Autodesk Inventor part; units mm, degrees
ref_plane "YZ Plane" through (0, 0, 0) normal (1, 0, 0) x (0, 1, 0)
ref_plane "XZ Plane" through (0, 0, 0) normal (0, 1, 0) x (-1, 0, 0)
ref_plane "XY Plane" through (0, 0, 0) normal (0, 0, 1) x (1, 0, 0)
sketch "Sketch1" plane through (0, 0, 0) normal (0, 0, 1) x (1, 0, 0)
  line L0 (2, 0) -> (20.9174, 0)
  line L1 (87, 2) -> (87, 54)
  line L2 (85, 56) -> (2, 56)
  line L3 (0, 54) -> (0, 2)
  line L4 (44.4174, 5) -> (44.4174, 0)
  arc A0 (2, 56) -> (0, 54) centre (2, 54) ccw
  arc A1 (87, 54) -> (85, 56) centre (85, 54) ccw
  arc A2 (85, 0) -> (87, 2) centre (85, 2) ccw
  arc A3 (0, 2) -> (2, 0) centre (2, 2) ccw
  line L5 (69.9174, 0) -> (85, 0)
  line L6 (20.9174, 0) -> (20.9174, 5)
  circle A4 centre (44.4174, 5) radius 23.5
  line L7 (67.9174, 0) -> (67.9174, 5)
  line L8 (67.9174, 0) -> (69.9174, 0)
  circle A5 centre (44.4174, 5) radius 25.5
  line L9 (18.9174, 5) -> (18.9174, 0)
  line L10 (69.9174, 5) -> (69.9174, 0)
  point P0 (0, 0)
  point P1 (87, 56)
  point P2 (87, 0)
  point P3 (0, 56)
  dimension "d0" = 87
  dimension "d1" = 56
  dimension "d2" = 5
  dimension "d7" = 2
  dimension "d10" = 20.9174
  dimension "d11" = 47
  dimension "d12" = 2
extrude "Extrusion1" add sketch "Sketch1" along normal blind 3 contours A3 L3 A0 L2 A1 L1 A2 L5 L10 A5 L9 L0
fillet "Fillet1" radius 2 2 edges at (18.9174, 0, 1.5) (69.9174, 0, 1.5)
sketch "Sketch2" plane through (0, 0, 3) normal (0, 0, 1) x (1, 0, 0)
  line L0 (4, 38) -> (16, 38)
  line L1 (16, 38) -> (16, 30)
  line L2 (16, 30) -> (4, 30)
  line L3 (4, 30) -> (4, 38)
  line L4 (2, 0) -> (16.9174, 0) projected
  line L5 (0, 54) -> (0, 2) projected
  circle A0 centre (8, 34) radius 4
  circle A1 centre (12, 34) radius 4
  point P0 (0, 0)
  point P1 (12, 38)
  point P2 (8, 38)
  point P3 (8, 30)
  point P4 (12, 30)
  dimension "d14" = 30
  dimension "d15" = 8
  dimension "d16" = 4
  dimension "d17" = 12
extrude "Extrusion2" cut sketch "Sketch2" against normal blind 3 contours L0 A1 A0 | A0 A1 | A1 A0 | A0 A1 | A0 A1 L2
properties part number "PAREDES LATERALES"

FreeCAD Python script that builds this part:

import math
import FreeCAD as App
import Part
import Sketcher
Q = App.Units.Quantity


def edges_at(feature, points):
    """Names of the edges that pass closest to the given points."""
    edges = feature.Shape.Edges
    near = lambda p: min(range(len(edges)), key=lambda i: edges[i].distToShape(Part.Vertex(*p))[0])
    return sorted({f"Edge{near(p) + 1}" for p in points})

doc = App.newDocument("Part")
body = doc.addObject("PartDesign::Body", "Body")

# Sketch on XY plane
sketch1 = body.newObject("Sketcher::SketchObject", "Sketch")
sketch1.AttachmentSupport = (doc.getObject("XY_Plane"), [""])
sketch1.MapMode = "FlatFace"
sketch1.addGeometry([
    Part.ArcOfCircle(Part.Circle(App.Vector(2, 2, 0), App.Vector(0, 0, 1), 2), math.radians(180), math.radians(270)),  # 0
    Part.LineSegment(App.Vector(2, 0, 0), App.Vector(18.9, 0, 0)),  # 1
    Part.LineSegment(App.Vector(18.9, 0, 0), App.Vector(18.9, 5, 0)),  # 2
    Part.ArcOfCircle(Part.Circle(App.Vector(44.4, 5, 0), App.Vector(0, 0, 1), 25.5), math.radians(0), math.radians(180)),  # 3
    Part.LineSegment(App.Vector(69.9, 5, 0), App.Vector(69.9, 0, 0)),  # 4
    Part.LineSegment(App.Vector(69.9, 0, 0), App.Vector(85, 0, 0)),  # 5
    Part.ArcOfCircle(Part.Circle(App.Vector(85, 2, 0), App.Vector(0, 0, 1), 2), math.radians(-90), math.radians(0)),  # 6
    Part.LineSegment(App.Vector(87, 2, 0), App.Vector(87, 54, 0)),  # 7
    Part.ArcOfCircle(Part.Circle(App.Vector(85, 54, 0), App.Vector(0, 0, 1), 2), math.radians(0), math.radians(90)),  # 8
    Part.LineSegment(App.Vector(85, 56, 0), App.Vector(2, 56, 0)),  # 9
    Part.ArcOfCircle(Part.Circle(App.Vector(2, 54, 0), App.Vector(0, 0, 1), 2), math.radians(90), math.radians(180)),  # 10
    Part.LineSegment(App.Vector(0, 54, 0), App.Vector(0, 2, 0)),  # 11
], False)
sketch1.addConstraint([
    Sketcher.Constraint("Tangent", 0, 2, 1, 1),
    Sketcher.Constraint("Coincident", 1, 2, 2, 1),
    Sketcher.Constraint("Tangent", 2, 2, 3, 2),
    Sketcher.Constraint("Tangent", 3, 1, 4, 1),
    Sketcher.Constraint("Coincident", 4, 2, 5, 1),
    Sketcher.Constraint("Tangent", 5, 2, 6, 1),
    Sketcher.Constraint("Tangent", 6, 2, 7, 1),
    Sketcher.Constraint("Tangent", 7, 2, 8, 1),
    Sketcher.Constraint("Tangent", 8, 2, 9, 1),
    Sketcher.Constraint("Tangent", 9, 2, 10, 1),
    Sketcher.Constraint("Tangent", 10, 2, 11, 1),
    Sketcher.Constraint("Tangent", 11, 2, 0, 1),
    Sketcher.Constraint("Horizontal", 1),
    Sketcher.Constraint("Vertical", 2),
    Sketcher.Constraint("Vertical", 4),
    Sketcher.Constraint("Horizontal", 5),
    Sketcher.Constraint("Vertical", 7),
    Sketcher.Constraint("Horizontal", 9),
    Sketcher.Constraint("Vertical", 11),
    Sketcher.Constraint("Equal", 0, 6),
    Sketcher.Constraint("Equal", 6, 8),
    Sketcher.Constraint("Equal", 8, 10),
    Sketcher.Constraint("PointOnObject", 0, 2, -1),
    Sketcher.Constraint("PointOnObject", 4, 2, -1),
    Sketcher.Constraint("PointOnObject", 10, 2, -2),
    Sketcher.Constraint("Radius", 0, Q("2 mm")),
    Sketcher.Constraint("DistanceY", 2, 1, 2, 2, Q("5 mm")),
    Sketcher.Constraint("DistanceX", -1, 1, 6, 2, Q("87 mm")),
    Sketcher.Constraint("DistanceY", -1, 1, 8, 2, Q("56 mm")),
    Sketcher.Constraint("Radius", 3, Q("25.5 mm")),
    Sketcher.Constraint("DistanceX", 1, 1, 1, 2, Q("16.9174 mm")),
])
pad1 = body.newObject("PartDesign::Pad", "Pad")
pad1.Profile = sketch1
pad1.Length = 3
doc.recompute()

fillet = body.newObject("PartDesign::Fillet", "Fillet")
fillet.Base = (pad1, edges_at(pad1, [(18.917, 0, 1.5), (69.917, 0, 1.5)]))
fillet.Radius = 2

# Sketch on XY plane
sketch2 = body.newObject("Sketcher::SketchObject", "Sketch001")
sketch2.AttachmentSupport = (doc.getObject("XY_Plane"), [""])
sketch2.MapMode = "FlatFace"
sketch2.AttachmentOffset = App.Placement(App.Vector(0, 0, 3), App.Rotation())
sketch2.addGeometry([
    Part.LineSegment(App.Vector(12, 38, 0), App.Vector(8, 38, 0)),
    Part.ArcOfCircle(Part.Circle(App.Vector(8, 34, 0), App.Vector(0, 0, 1), 4), math.radians(90), math.radians(270)),
    Part.LineSegment(App.Vector(8, 30, 0), App.Vector(12, 30, 0)),
    Part.ArcOfCircle(Part.Circle(App.Vector(12, 34, 0), App.Vector(0, 0, 1), 4), math.radians(-90), math.radians(90)),
], False)
sketch2.addConstraint([
    Sketcher.Constraint("Tangent", 0, 2, 1, 1),
    Sketcher.Constraint("Tangent", 1, 2, 2, 1),
    Sketcher.Constraint("Tangent", 2, 2, 3, 1),
    Sketcher.Constraint("Tangent", 3, 2, 0, 1),
    Sketcher.Constraint("Horizontal", 0),
    Sketcher.Constraint("Horizontal", 2),
    Sketcher.Constraint("Radius", 1, Q("4 mm")),
    Sketcher.Constraint("DistanceX", 0, 2, 0, 1, Q("4 mm")),
    Sketcher.Constraint("DistanceX", -1, 1, 1, 3, Q("8 mm")),
    Sketcher.Constraint("DistanceY", -1, 1, 1, 2, Q("30 mm")),
])
pocket1 = body.newObject("PartDesign::Pocket", "Pocket")
pocket1.Profile = sketch2
pocket1.Length = 3

doc.recompute()
